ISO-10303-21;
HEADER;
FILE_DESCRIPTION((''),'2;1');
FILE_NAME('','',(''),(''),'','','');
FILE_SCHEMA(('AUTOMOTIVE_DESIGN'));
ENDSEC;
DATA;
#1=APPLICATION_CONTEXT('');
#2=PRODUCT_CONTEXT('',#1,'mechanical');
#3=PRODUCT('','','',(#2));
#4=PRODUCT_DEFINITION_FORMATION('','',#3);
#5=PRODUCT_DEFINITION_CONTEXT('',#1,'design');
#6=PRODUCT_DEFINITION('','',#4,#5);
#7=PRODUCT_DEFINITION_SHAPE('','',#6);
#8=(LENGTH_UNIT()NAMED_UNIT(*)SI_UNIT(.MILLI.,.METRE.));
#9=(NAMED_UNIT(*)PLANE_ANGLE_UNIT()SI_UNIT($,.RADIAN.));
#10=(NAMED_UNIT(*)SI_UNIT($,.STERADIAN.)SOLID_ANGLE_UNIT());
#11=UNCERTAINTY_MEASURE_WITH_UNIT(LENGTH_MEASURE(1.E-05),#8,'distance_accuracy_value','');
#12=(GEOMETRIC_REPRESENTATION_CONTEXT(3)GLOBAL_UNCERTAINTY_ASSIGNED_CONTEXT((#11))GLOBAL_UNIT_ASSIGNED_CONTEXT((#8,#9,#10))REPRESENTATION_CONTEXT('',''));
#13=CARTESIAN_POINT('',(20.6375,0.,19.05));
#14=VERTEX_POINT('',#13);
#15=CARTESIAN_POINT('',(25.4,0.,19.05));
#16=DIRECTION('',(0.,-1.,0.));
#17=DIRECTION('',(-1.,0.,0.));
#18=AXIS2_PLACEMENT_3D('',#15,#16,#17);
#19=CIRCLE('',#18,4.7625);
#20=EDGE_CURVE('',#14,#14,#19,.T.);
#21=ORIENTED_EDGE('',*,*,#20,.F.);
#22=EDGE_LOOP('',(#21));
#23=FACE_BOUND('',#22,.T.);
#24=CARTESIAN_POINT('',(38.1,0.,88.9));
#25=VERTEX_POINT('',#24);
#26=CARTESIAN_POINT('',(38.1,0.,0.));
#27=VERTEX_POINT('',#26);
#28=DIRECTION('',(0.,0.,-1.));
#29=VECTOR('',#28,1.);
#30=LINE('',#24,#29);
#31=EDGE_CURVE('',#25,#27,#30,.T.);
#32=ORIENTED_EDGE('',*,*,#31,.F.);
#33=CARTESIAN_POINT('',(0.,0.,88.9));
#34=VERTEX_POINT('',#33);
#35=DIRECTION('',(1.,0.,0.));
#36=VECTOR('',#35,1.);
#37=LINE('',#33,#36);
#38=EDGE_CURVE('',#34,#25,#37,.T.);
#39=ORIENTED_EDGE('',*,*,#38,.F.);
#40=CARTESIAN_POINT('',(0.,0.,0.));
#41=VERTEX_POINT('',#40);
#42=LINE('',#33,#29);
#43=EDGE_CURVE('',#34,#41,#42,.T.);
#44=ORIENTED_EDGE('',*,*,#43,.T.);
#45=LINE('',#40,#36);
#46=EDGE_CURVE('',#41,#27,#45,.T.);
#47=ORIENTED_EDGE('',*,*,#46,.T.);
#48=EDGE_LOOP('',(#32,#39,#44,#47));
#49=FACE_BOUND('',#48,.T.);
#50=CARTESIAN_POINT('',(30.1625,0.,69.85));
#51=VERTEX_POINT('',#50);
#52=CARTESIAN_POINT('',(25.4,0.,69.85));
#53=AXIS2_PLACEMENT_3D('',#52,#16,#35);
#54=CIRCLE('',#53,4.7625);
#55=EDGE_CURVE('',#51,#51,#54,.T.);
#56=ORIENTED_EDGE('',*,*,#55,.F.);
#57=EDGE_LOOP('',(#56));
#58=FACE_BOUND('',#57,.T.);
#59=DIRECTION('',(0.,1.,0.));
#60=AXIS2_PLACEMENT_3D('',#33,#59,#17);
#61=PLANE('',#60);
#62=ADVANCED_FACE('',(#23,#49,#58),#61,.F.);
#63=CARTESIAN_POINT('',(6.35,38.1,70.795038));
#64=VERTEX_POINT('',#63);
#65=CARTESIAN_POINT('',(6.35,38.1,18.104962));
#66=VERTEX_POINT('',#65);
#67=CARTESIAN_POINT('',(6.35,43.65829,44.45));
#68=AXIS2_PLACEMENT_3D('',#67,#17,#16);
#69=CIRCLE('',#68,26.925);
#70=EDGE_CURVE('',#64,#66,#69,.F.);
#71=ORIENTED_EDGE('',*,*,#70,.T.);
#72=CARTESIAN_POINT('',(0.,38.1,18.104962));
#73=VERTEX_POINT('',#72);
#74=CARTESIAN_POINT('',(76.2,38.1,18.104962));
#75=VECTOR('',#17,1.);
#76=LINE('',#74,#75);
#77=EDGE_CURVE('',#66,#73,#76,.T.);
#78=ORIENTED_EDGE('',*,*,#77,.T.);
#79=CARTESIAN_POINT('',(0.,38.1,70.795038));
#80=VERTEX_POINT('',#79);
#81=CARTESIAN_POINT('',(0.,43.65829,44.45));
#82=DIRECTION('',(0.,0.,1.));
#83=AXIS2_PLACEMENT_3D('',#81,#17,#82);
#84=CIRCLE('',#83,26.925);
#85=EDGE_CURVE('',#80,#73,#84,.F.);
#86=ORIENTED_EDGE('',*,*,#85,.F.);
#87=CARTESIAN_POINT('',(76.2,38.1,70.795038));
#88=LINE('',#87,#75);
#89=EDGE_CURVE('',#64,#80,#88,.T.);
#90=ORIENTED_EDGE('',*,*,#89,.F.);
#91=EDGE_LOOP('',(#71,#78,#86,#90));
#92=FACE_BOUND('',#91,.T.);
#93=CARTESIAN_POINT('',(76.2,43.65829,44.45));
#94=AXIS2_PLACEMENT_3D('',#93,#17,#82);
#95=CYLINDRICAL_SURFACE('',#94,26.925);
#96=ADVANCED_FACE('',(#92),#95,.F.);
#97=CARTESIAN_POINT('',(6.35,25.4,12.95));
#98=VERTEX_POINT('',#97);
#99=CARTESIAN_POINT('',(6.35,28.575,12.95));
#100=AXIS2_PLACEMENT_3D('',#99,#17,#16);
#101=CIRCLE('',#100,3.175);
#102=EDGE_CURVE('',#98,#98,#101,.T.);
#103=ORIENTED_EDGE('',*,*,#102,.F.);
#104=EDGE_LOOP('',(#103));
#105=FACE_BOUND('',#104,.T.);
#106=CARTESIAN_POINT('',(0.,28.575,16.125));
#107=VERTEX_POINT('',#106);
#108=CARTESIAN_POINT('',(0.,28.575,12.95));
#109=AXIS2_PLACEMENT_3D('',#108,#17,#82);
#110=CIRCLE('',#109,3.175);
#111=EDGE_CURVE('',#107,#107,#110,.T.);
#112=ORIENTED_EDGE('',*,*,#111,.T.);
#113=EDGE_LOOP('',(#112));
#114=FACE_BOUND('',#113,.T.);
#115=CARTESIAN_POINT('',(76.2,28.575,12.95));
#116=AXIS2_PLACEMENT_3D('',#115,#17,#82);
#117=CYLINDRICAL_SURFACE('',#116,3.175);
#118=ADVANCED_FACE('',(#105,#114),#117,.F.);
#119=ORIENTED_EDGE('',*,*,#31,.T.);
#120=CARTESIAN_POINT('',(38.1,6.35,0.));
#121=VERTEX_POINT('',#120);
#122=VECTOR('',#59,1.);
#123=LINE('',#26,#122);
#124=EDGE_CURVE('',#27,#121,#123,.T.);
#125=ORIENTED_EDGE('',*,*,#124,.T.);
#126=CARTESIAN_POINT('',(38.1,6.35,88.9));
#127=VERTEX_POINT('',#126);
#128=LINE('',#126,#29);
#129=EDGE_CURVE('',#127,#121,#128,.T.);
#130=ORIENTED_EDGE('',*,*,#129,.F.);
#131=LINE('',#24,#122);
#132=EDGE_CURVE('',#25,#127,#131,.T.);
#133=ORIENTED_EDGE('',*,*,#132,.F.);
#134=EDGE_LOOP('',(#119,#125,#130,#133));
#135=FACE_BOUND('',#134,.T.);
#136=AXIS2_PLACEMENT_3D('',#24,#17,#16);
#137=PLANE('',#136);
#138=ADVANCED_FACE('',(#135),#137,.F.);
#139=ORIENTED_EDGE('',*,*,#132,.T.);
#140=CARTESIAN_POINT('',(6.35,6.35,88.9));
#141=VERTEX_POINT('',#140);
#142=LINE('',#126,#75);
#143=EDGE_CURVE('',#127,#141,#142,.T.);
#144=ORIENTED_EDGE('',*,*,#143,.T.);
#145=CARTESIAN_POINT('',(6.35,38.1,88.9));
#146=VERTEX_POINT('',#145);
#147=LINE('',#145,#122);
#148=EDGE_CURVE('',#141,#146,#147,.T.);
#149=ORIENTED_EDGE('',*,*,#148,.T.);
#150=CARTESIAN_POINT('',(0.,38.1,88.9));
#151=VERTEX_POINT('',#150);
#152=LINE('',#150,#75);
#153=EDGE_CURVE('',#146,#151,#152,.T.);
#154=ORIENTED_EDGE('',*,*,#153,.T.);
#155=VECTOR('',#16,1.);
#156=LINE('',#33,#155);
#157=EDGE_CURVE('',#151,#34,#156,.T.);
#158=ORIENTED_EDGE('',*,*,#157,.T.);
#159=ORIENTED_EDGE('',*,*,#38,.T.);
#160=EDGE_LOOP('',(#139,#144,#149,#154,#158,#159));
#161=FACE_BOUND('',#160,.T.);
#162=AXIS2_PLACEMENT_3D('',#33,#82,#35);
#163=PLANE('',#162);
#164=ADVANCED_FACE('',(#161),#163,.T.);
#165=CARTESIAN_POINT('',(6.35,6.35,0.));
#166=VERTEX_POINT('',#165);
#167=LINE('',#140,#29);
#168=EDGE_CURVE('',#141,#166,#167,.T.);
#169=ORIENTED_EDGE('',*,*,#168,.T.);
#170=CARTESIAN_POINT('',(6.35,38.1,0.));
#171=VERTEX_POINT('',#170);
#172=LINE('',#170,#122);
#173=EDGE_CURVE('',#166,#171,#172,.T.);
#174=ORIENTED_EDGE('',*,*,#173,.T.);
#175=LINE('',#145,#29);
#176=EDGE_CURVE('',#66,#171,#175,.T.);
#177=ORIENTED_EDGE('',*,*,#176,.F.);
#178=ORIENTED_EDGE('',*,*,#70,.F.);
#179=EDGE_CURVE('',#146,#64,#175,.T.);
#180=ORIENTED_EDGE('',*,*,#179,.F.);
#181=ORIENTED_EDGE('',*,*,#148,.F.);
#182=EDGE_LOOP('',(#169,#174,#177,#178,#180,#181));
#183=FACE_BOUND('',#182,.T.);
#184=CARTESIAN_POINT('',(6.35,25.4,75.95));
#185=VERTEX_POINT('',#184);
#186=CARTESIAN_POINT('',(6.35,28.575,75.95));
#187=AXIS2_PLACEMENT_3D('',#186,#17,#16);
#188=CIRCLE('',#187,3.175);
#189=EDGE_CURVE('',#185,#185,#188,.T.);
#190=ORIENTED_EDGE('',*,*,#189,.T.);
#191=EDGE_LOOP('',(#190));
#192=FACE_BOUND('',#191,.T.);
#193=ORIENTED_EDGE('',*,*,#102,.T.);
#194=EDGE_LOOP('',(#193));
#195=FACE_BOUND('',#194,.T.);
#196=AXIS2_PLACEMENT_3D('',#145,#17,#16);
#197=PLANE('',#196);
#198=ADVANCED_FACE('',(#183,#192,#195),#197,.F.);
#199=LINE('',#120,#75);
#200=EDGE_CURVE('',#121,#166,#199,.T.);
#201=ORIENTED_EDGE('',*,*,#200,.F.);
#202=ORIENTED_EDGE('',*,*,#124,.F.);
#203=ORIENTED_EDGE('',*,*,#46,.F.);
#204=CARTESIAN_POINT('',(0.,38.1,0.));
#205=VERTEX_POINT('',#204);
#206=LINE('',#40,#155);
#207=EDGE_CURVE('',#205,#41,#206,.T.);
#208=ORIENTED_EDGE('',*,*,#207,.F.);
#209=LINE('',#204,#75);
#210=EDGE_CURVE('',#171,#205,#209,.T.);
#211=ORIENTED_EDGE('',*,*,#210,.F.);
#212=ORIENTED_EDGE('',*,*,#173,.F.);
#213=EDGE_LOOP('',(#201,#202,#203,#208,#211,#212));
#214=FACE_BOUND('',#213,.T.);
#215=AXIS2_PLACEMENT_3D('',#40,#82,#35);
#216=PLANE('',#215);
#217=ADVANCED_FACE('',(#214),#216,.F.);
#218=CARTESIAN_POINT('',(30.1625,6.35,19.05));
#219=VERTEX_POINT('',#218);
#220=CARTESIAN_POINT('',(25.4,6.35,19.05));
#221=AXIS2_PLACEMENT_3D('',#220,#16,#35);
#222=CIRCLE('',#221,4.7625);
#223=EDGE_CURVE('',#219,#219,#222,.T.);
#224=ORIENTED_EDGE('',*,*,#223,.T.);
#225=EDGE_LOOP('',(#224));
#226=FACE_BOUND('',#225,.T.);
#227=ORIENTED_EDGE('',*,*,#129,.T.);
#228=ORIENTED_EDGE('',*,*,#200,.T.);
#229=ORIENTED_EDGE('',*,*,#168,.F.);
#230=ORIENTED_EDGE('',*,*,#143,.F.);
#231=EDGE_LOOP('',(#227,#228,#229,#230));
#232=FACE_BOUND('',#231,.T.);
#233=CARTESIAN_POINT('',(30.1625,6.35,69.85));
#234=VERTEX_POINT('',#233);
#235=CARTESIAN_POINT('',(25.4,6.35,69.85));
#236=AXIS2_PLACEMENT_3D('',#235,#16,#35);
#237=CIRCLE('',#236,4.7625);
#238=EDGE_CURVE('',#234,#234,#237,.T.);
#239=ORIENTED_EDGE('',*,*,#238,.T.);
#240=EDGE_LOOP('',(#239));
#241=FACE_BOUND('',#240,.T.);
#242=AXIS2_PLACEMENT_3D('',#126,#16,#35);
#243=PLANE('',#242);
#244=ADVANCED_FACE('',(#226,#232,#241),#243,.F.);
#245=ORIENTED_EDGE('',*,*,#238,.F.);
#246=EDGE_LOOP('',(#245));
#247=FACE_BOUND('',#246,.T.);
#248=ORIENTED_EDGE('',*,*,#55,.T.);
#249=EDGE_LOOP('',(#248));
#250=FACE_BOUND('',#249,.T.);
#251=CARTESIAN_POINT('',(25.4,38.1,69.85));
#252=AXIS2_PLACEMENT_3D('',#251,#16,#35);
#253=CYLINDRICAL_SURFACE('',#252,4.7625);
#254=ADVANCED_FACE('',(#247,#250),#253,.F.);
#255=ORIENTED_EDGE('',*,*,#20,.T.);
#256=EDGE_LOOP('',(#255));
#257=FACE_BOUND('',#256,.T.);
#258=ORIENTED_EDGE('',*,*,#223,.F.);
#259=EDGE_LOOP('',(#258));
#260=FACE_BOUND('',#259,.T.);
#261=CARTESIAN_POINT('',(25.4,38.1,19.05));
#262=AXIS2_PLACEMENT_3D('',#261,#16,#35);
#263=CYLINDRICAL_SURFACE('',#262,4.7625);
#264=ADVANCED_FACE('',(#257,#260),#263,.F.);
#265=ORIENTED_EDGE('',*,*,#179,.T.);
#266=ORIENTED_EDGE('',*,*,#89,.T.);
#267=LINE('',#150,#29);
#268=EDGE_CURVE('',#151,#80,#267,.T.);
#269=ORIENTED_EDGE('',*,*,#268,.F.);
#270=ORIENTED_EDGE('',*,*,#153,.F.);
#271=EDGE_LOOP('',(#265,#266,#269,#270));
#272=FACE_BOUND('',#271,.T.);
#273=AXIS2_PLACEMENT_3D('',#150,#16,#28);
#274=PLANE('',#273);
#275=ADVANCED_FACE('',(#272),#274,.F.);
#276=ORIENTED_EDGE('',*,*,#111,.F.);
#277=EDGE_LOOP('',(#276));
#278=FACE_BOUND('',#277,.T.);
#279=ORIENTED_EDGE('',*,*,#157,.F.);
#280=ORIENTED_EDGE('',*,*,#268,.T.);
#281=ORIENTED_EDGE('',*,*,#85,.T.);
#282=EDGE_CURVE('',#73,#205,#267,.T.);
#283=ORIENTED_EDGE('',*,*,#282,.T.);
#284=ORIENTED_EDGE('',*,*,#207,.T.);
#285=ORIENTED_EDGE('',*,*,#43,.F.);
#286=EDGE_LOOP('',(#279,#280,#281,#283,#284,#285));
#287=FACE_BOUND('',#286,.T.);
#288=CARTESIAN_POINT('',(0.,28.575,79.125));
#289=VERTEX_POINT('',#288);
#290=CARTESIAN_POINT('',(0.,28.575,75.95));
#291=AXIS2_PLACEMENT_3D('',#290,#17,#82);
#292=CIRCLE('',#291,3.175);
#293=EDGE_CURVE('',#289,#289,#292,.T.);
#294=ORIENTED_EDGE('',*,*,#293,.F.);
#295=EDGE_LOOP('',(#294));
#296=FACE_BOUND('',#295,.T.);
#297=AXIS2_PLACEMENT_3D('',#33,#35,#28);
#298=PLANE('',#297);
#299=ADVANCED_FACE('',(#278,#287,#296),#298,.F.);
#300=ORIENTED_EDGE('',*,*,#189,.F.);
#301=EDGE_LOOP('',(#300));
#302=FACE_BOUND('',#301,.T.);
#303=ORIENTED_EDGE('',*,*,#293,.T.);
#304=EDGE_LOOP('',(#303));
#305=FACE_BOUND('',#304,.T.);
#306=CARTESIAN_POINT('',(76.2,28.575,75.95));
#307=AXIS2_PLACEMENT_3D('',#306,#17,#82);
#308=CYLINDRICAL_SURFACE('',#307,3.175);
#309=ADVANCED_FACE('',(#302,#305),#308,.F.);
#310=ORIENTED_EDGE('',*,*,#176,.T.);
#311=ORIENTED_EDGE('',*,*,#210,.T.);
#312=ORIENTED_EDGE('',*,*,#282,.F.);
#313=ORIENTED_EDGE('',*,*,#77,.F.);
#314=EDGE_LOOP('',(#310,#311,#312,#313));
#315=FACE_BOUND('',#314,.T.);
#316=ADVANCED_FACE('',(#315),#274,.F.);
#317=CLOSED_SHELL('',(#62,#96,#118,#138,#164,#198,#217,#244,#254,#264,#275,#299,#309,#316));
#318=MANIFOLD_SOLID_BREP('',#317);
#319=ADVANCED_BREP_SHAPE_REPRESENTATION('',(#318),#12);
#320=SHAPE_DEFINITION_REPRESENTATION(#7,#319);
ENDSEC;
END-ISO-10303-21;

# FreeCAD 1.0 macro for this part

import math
import FreeCAD as App
import Part
import Sketcher
Q = App.Units.Quantity


def add_polygon(sketch, points):
    """Adds a closed chain of lines whose ends are joined by coincident constraints."""
    first, n = sketch.GeometryCount, len(points)
    for a, b in zip(points, points[1:] + points[:1]):
        sketch.addGeometry(Part.LineSegment(App.Vector(*a, 0), App.Vector(*b, 0)), False)
    for i in range(n):
        sketch.addConstraint(Sketcher.Constraint("Coincident", first + i, 2, first + (i + 1) % n, 1))

doc = App.newDocument("Part")
body = doc.addObject("PartDesign::Body", "Body")

# Sketch on XY plane
sketch1 = doc.addObject("Sketcher::SketchObject", "Sketch")
body.addObject(sketch1)
sketch1.AttachmentSupport = (doc.XY_Plane, [""])
sketch1.MapMode = "FlatFace"
add_polygon(sketch1, [(0, 38.1), (0, 0), (38.1, 0), (38.1, 6.35), (6.35, 6.35), (6.35, 38.1)])  # lines 0-5
sketch1.addConstraint(Sketcher.Constraint("Vertical", 0))
sketch1.addConstraint(Sketcher.Constraint("Horizontal", 1))
sketch1.addConstraint(Sketcher.Constraint("Vertical", 2))
sketch1.addConstraint(Sketcher.Constraint("Horizontal", 3))
sketch1.addConstraint(Sketcher.Constraint("Vertical", 4))
sketch1.addConstraint(Sketcher.Constraint("Horizontal", 5))
sketch1.addConstraint(Sketcher.Constraint("Coincident", 0, 2, -1, 1))
sketch1.addConstraint(Sketcher.Constraint("Equal", 1, 0))
sketch1.addConstraint(Sketcher.Constraint("Equal", 5, 2))
sketch1.addConstraint(Sketcher.Constraint("DistanceX", 1, 1, 1, 2, Q("1.5 in")))
sketch1.addConstraint(Sketcher.Constraint("DistanceX", 3, 2, 3, 1, Q("1.25 in")))
pad1 = doc.addObject("PartDesign::Pad", "Pad")
body.addObject(pad1)
pad1.Profile = sketch1
pad1.Length = Q("3.5 in")

# Sketch on YZ plane
sketch2 = doc.addObject("Sketcher::SketchObject", "Sketch001")
body.addObject(sketch2)
sketch2.AttachmentSupport = (doc.YZ_Plane, [""])
sketch2.MapMode = "FlatFace"
sketch2.addGeometry(Part.Circle(App.Vector(28.575, 12.95, 0), App.Vector(0, 0, 1), 3.175), False)
sketch2.addGeometry(Part.Circle(App.Vector(28.575, 75.95, 0), App.Vector(0, 0, 1), 3.175), False)
sketch2.addGeometry(Part.ArcOfCircle(Part.Circle(App.Vector(43.65829, 44.45, 0), App.Vector(0, 0, 1), 26.925), math.radians(101.913575), math.radians(258.086425)), False)
sketch2.addGeometry(Part.LineSegment(App.Vector(38.1, 70.795038, 0), App.Vector(38.1, 18.104962, 0)), False)
sketch2.addConstraint(Sketcher.Constraint("Coincident", 2, 1, 3, 1))
sketch2.addConstraint(Sketcher.Constraint("Coincident", 3, 2, 2, 2))
sketch2.addConstraint(Sketcher.Constraint("Vertical", 3))
sketch2.addConstraint(Sketcher.Constraint("Equal", 0, 1))
sketch2.addConstraint(Sketcher.Constraint("Vertical", 0, 3, 1, 3))
sketch2.addConstraint(Sketcher.Constraint("Diameter", 0, Q("0.25 in")))
sketch2.addConstraint(Sketcher.Constraint("DistanceX", -1, 1, 2, 1, Q("1.5 in")))
sketch2.addConstraint(Sketcher.Constraint("DistanceY", -1, 1, 2, 3, Q("1.75 in")))
sketch2.addConstraint(Sketcher.Constraint("Radius", 2, 26.925))
sketch2.addConstraint(Sketcher.Constraint("DistanceX", -1, 1, 0, 3, Q("1.125 in")))
sketch2.addConstraint(Sketcher.Constraint("DistanceY", -1, 1, 0, 3, 12.95))
sketch2.addConstraint(Sketcher.Constraint("DistanceY", -1, 1, 1, 3, 75.95))
sketch2.addConstraint(Sketcher.Constraint("DistanceY", 3, 2, 3, 1, 52.690077))
pocket1 = doc.addObject("PartDesign::Pocket", "Pocket")
body.addObject(pocket1)
pocket1.Profile = sketch2
pocket1.Length = Q("3 in")
pocket1.Reversed = True

# Sketch on XZ plane
sketch3 = doc.addObject("Sketcher::SketchObject", "Sketch002")
body.addObject(sketch3)
sketch3.AttachmentSupport = (doc.XZ_Plane, [""])
sketch3.MapMode = "FlatFace"
sketch3.addGeometry(Part.Circle(App.Vector(25.4, 69.85, 0), App.Vector(0, 0, 1), 4.7625), False)
sketch3.addGeometry(Part.Circle(App.Vector(25.4, 19.05, 0), App.Vector(0, 0, 1), 4.7625), False)
sketch3.addConstraint(Sketcher.Constraint("Equal", 0, 1))
sketch3.addConstraint(Sketcher.Constraint("Vertical", 0, 3, 1, 3))
sketch3.addConstraint(Sketcher.Constraint("Diameter", 0, Q("0.375 in")))
sketch3.addConstraint(Sketcher.Constraint("DistanceX", -1, 1, 0, 3, Q("1 in")))
sketch3.addConstraint(Sketcher.Constraint("DistanceY", 1, 3, 0, 3, Q("2 in")))
sketch3.addConstraint(Sketcher.Constraint("DistanceY", -1, 1, 0, 3, Q("2.75 in")))
pocket2 = doc.addObject("PartDesign::Pocket", "Pocket001")
body.addObject(pocket2)
pocket2.Profile = sketch3
pocket2.Type = "ThroughAll"

doc.recompute()
